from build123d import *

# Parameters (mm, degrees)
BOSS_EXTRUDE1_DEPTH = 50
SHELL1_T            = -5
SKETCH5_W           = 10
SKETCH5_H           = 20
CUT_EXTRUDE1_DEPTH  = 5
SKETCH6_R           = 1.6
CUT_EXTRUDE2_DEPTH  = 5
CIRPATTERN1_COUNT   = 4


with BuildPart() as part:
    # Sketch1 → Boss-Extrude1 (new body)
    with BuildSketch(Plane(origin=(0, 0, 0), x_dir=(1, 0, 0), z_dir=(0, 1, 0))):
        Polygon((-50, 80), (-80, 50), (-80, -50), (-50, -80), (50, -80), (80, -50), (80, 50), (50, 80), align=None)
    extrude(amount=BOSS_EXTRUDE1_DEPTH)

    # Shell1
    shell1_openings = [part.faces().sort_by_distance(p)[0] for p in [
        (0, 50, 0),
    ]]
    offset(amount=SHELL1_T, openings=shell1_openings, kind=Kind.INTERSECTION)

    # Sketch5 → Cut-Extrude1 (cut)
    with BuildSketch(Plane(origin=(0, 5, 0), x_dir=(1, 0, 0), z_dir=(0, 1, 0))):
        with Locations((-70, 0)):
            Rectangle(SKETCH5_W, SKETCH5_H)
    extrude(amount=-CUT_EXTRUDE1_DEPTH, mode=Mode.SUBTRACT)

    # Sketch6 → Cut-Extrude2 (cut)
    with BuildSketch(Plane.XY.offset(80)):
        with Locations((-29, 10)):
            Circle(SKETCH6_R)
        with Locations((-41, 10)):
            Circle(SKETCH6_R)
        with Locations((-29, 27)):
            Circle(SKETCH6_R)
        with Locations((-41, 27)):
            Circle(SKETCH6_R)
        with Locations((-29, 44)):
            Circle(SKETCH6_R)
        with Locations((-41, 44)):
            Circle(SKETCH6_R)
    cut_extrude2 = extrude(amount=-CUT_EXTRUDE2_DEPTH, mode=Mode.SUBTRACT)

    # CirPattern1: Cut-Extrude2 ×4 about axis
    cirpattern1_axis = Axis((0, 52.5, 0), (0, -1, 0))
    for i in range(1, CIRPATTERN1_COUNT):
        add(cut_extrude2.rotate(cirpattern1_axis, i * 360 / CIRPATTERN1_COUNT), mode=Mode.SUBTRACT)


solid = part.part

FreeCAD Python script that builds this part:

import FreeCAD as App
import Part
import Sketcher
from FreeCAD import Vector
Q = App.Units.Quantity


def faces_at(feature, points):
    """Names of the faces that lie closest to the given points."""
    faces = feature.Shape.Faces
    near = lambda p: min(range(len(faces)), key=lambda i: faces[i].distToShape(Part.Vertex(*p))[0])
    return sorted({f"Face{near(p) + 1}" for p in points})


def add_polygon(sketch, points):
    """Adds a closed chain of lines whose ends are joined by coincident constraints."""
    first, n = sketch.GeometryCount, len(points)
    for a, b in zip(points, points[1:] + points[:1]):
        sketch.addGeometry(Part.LineSegment(App.Vector(*a, 0), App.Vector(*b, 0)), False)
    for i in range(n):
        sketch.addConstraint(Sketcher.Constraint("Coincident", first + i, 2, first + (i + 1) % n, 1))

doc = App.newDocument("Part")
params = doc.addObject("Spreadsheet::Sheet", "Params")
for row, (alias, value) in enumerate([
    ("sketch1_width", "100 mm"),
    ("pad1_length", "50 mm"),
    ("thickness_wall", "5 mm"),
    ("sketch2_width", "10 mm"),
    ("sketch2_height", "20 mm"),
    ("pocket1_length", "5 mm"),
    ("sketch3_diameter", "3.2 mm"),
    ("pocket2_length", "5 mm"),
], start=1):
    params.set(f"A{row}", alias)
    params.set(f"B{row}", "=" + value)
    params.setAlias(f"B{row}", alias)

body = doc.addObject("PartDesign::Body", "Body")

# Sketch on XZ plane
sketch1 = doc.addObject("Sketcher::SketchObject", "Sketch")
body.addObject(sketch1)
sketch1.AttachmentSupport = (doc.XZ_Plane, [""])
sketch1.MapMode = "FlatFace"
add_polygon(sketch1, [(-50, -80), (-80, -50), (-80, 50), (-50, 80), (50, 80), (80, 50), (80, -50), (50, -80)])  # lines 0-7
sketch1.addConstraint([
    Sketcher.Constraint("Vertical", 1),
    Sketcher.Constraint("Horizontal", 3),
    Sketcher.Constraint("Vertical", 5),
    Sketcher.Constraint("Horizontal", 7),
    Sketcher.Constraint("Symmetric", 0, 2, 4, 2, -1, 1),
    Sketcher.Constraint("Symmetric", 2, 2, 6, 2, -1, 1),
    Sketcher.Constraint("Perpendicular", 0, 2),
    Sketcher.Constraint("Perpendicular", 2, 4),
    Sketcher.Constraint("Perpendicular", 4, 6),
    Sketcher.Constraint("Horizontal", 1, 2, 4, 2),
    Sketcher.Constraint("Vertical", 3, 2, 6, 2),
    Sketcher.Constraint("Equal", 7, 1),
    Sketcher.Constraint("DistanceX", 3, 1, 3, 2, Q("100 mm")),
    Sketcher.Constraint("DistanceX", 0, 2, -1, 1, Q("80 mm")),
])
sketch1.setExpression("Constraints[20]", "Params.sketch1_width")
pad1 = doc.addObject("PartDesign::Pad", "Pad")
body.addObject(pad1)
pad1.Profile = sketch1
pad1.setExpression("Length", "Params.pad1_length")
pad1.Reversed = True
doc.recompute()

thickness = doc.addObject("PartDesign::Thickness", "Thickness")
body.addObject(thickness)
thickness.Base = (pad1, faces_at(pad1, [(0, 50, 0)]))
thickness.setExpression("Value", "Params.thickness_wall")
thickness.Reversed = True
thickness.Join = "Intersection"

# Sketch on XZ plane
sketch2 = doc.addObject("Sketcher::SketchObject", "Sketch001")
body.addObject(sketch2)
sketch2.AttachmentSupport = (doc.XZ_Plane, [""])
sketch2.MapMode = "FlatFace"
sketch2.AttachmentOffset = App.Placement(Vector(0, 0, -5), App.Rotation())
add_polygon(sketch2, [(-75, -10), (-75, 10), (-65, 10), (-65, -10)])  # lines 0-3
sketch2.addConstraint([
    Sketcher.Constraint("Vertical", 0),
    Sketcher.Constraint("Horizontal", 1),
    Sketcher.Constraint("Vertical", 2),
    Sketcher.Constraint("Horizontal", 3),
    Sketcher.Constraint("DistanceX", 1, 1, 1, 2, Q("10 mm")),
    Sketcher.Constraint("DistanceY", 0, 1, 0, 2, Q("20 mm")),
    Sketcher.Constraint("DistanceX", 0, 2, -1, 1, Q("75 mm")),
    Sketcher.Constraint("DistanceY", -1, 1, 0, 2, Q("10 mm")),
])
sketch2.setExpression("Constraints[8]", "Params.sketch2_width")
sketch2.setExpression("Constraints[9]", "Params.sketch2_height")
pocket1 = doc.addObject("PartDesign::Pocket", "Pocket")
body.addObject(pocket1)
pocket1.Profile = sketch2
pocket1.setExpression("Length", "Params.pocket1_length")
pocket1.Reversed = True

# Sketch on XY plane
sketch3 = doc.addObject("Sketcher::SketchObject", "Sketch002")
body.addObject(sketch3)
sketch3.AttachmentSupport = (doc.XY_Plane, [""])
sketch3.MapMode = "FlatFace"
sketch3.AttachmentOffset = App.Placement(Vector(0, 0, 80), App.Rotation())
sketch3.addGeometry([
    Part.Circle(Vector(-29, 10, 0), Vector(0, 0, 1), 1.6),  # 0
    Part.Circle(Vector(-41, 10, 0), Vector(0, 0, 1), 1.6),  # 1
    Part.Circle(Vector(-29, 27, 0), Vector(0, 0, 1), 1.6),  # 2
    Part.Circle(Vector(-41, 27, 0), Vector(0, 0, 1), 1.6),  # 3
    Part.Circle(Vector(-29, 44, 0), Vector(0, 0, 1), 1.6),  # 4
    Part.Circle(Vector(-41, 44, 0), Vector(0, 0, 1), 1.6),  # 5
], False)
sketch3.addConstraint([
    Sketcher.Constraint("Equal", 0, 1),
    Sketcher.Constraint("Equal", 1, 2),
    Sketcher.Constraint("Equal", 2, 3),
    Sketcher.Constraint("Equal", 3, 4),
    Sketcher.Constraint("Equal", 4, 5),
    Sketcher.Constraint("Horizontal", 0, 3, 1, 3),
    Sketcher.Constraint("Horizontal", 2, 3, 3, 3),
    Sketcher.Constraint("Horizontal", 4, 3, 5, 3),
    Sketcher.Constraint("Vertical", 0, 3, 2, 3),
    Sketcher.Constraint("Vertical", 1, 3, 3, 3),
    Sketcher.Constraint("Vertical", 2, 3, 4, 3),
    Sketcher.Constraint("Vertical", 3, 3, 5, 3),
    Sketcher.Constraint("Diameter", 0, Q("3.2 mm")),
    Sketcher.Constraint("DistanceX", 0, 3, -1, 1, Q("29 mm")),
    Sketcher.Constraint("DistanceY", -1, 1, 0, 3, Q("10 mm")),
    Sketcher.Constraint("DistanceX", 1, 3, -1, 1, Q("41 mm")),
    Sketcher.Constraint("DistanceY", -1, 1, 2, 3, Q("27 mm")),
    Sketcher.Constraint("DistanceY", -1, 1, 4, 3, Q("44 mm")),
])
sketch3.setExpression("Constraints[12]", "Params.sketch3_diameter")
pocket2 = doc.addObject("PartDesign::Pocket", "Pocket001")
body.addObject(pocket2)
pocket2.Profile = sketch3
pocket2.setExpression("Length", "Params.pocket2_length")
doc.recompute()

polarpattern = doc.addObject("PartDesign::PolarPattern", "PolarPattern")
body.addObject(polarpattern)
polarpattern.Originals = [pocket2]
polarpattern.Axis = (doc.Y_Axis, [""])
polarpattern.Angle = 360
polarpattern.Occurrences = 4
body.Tip = polarpattern

doc.recompute()
